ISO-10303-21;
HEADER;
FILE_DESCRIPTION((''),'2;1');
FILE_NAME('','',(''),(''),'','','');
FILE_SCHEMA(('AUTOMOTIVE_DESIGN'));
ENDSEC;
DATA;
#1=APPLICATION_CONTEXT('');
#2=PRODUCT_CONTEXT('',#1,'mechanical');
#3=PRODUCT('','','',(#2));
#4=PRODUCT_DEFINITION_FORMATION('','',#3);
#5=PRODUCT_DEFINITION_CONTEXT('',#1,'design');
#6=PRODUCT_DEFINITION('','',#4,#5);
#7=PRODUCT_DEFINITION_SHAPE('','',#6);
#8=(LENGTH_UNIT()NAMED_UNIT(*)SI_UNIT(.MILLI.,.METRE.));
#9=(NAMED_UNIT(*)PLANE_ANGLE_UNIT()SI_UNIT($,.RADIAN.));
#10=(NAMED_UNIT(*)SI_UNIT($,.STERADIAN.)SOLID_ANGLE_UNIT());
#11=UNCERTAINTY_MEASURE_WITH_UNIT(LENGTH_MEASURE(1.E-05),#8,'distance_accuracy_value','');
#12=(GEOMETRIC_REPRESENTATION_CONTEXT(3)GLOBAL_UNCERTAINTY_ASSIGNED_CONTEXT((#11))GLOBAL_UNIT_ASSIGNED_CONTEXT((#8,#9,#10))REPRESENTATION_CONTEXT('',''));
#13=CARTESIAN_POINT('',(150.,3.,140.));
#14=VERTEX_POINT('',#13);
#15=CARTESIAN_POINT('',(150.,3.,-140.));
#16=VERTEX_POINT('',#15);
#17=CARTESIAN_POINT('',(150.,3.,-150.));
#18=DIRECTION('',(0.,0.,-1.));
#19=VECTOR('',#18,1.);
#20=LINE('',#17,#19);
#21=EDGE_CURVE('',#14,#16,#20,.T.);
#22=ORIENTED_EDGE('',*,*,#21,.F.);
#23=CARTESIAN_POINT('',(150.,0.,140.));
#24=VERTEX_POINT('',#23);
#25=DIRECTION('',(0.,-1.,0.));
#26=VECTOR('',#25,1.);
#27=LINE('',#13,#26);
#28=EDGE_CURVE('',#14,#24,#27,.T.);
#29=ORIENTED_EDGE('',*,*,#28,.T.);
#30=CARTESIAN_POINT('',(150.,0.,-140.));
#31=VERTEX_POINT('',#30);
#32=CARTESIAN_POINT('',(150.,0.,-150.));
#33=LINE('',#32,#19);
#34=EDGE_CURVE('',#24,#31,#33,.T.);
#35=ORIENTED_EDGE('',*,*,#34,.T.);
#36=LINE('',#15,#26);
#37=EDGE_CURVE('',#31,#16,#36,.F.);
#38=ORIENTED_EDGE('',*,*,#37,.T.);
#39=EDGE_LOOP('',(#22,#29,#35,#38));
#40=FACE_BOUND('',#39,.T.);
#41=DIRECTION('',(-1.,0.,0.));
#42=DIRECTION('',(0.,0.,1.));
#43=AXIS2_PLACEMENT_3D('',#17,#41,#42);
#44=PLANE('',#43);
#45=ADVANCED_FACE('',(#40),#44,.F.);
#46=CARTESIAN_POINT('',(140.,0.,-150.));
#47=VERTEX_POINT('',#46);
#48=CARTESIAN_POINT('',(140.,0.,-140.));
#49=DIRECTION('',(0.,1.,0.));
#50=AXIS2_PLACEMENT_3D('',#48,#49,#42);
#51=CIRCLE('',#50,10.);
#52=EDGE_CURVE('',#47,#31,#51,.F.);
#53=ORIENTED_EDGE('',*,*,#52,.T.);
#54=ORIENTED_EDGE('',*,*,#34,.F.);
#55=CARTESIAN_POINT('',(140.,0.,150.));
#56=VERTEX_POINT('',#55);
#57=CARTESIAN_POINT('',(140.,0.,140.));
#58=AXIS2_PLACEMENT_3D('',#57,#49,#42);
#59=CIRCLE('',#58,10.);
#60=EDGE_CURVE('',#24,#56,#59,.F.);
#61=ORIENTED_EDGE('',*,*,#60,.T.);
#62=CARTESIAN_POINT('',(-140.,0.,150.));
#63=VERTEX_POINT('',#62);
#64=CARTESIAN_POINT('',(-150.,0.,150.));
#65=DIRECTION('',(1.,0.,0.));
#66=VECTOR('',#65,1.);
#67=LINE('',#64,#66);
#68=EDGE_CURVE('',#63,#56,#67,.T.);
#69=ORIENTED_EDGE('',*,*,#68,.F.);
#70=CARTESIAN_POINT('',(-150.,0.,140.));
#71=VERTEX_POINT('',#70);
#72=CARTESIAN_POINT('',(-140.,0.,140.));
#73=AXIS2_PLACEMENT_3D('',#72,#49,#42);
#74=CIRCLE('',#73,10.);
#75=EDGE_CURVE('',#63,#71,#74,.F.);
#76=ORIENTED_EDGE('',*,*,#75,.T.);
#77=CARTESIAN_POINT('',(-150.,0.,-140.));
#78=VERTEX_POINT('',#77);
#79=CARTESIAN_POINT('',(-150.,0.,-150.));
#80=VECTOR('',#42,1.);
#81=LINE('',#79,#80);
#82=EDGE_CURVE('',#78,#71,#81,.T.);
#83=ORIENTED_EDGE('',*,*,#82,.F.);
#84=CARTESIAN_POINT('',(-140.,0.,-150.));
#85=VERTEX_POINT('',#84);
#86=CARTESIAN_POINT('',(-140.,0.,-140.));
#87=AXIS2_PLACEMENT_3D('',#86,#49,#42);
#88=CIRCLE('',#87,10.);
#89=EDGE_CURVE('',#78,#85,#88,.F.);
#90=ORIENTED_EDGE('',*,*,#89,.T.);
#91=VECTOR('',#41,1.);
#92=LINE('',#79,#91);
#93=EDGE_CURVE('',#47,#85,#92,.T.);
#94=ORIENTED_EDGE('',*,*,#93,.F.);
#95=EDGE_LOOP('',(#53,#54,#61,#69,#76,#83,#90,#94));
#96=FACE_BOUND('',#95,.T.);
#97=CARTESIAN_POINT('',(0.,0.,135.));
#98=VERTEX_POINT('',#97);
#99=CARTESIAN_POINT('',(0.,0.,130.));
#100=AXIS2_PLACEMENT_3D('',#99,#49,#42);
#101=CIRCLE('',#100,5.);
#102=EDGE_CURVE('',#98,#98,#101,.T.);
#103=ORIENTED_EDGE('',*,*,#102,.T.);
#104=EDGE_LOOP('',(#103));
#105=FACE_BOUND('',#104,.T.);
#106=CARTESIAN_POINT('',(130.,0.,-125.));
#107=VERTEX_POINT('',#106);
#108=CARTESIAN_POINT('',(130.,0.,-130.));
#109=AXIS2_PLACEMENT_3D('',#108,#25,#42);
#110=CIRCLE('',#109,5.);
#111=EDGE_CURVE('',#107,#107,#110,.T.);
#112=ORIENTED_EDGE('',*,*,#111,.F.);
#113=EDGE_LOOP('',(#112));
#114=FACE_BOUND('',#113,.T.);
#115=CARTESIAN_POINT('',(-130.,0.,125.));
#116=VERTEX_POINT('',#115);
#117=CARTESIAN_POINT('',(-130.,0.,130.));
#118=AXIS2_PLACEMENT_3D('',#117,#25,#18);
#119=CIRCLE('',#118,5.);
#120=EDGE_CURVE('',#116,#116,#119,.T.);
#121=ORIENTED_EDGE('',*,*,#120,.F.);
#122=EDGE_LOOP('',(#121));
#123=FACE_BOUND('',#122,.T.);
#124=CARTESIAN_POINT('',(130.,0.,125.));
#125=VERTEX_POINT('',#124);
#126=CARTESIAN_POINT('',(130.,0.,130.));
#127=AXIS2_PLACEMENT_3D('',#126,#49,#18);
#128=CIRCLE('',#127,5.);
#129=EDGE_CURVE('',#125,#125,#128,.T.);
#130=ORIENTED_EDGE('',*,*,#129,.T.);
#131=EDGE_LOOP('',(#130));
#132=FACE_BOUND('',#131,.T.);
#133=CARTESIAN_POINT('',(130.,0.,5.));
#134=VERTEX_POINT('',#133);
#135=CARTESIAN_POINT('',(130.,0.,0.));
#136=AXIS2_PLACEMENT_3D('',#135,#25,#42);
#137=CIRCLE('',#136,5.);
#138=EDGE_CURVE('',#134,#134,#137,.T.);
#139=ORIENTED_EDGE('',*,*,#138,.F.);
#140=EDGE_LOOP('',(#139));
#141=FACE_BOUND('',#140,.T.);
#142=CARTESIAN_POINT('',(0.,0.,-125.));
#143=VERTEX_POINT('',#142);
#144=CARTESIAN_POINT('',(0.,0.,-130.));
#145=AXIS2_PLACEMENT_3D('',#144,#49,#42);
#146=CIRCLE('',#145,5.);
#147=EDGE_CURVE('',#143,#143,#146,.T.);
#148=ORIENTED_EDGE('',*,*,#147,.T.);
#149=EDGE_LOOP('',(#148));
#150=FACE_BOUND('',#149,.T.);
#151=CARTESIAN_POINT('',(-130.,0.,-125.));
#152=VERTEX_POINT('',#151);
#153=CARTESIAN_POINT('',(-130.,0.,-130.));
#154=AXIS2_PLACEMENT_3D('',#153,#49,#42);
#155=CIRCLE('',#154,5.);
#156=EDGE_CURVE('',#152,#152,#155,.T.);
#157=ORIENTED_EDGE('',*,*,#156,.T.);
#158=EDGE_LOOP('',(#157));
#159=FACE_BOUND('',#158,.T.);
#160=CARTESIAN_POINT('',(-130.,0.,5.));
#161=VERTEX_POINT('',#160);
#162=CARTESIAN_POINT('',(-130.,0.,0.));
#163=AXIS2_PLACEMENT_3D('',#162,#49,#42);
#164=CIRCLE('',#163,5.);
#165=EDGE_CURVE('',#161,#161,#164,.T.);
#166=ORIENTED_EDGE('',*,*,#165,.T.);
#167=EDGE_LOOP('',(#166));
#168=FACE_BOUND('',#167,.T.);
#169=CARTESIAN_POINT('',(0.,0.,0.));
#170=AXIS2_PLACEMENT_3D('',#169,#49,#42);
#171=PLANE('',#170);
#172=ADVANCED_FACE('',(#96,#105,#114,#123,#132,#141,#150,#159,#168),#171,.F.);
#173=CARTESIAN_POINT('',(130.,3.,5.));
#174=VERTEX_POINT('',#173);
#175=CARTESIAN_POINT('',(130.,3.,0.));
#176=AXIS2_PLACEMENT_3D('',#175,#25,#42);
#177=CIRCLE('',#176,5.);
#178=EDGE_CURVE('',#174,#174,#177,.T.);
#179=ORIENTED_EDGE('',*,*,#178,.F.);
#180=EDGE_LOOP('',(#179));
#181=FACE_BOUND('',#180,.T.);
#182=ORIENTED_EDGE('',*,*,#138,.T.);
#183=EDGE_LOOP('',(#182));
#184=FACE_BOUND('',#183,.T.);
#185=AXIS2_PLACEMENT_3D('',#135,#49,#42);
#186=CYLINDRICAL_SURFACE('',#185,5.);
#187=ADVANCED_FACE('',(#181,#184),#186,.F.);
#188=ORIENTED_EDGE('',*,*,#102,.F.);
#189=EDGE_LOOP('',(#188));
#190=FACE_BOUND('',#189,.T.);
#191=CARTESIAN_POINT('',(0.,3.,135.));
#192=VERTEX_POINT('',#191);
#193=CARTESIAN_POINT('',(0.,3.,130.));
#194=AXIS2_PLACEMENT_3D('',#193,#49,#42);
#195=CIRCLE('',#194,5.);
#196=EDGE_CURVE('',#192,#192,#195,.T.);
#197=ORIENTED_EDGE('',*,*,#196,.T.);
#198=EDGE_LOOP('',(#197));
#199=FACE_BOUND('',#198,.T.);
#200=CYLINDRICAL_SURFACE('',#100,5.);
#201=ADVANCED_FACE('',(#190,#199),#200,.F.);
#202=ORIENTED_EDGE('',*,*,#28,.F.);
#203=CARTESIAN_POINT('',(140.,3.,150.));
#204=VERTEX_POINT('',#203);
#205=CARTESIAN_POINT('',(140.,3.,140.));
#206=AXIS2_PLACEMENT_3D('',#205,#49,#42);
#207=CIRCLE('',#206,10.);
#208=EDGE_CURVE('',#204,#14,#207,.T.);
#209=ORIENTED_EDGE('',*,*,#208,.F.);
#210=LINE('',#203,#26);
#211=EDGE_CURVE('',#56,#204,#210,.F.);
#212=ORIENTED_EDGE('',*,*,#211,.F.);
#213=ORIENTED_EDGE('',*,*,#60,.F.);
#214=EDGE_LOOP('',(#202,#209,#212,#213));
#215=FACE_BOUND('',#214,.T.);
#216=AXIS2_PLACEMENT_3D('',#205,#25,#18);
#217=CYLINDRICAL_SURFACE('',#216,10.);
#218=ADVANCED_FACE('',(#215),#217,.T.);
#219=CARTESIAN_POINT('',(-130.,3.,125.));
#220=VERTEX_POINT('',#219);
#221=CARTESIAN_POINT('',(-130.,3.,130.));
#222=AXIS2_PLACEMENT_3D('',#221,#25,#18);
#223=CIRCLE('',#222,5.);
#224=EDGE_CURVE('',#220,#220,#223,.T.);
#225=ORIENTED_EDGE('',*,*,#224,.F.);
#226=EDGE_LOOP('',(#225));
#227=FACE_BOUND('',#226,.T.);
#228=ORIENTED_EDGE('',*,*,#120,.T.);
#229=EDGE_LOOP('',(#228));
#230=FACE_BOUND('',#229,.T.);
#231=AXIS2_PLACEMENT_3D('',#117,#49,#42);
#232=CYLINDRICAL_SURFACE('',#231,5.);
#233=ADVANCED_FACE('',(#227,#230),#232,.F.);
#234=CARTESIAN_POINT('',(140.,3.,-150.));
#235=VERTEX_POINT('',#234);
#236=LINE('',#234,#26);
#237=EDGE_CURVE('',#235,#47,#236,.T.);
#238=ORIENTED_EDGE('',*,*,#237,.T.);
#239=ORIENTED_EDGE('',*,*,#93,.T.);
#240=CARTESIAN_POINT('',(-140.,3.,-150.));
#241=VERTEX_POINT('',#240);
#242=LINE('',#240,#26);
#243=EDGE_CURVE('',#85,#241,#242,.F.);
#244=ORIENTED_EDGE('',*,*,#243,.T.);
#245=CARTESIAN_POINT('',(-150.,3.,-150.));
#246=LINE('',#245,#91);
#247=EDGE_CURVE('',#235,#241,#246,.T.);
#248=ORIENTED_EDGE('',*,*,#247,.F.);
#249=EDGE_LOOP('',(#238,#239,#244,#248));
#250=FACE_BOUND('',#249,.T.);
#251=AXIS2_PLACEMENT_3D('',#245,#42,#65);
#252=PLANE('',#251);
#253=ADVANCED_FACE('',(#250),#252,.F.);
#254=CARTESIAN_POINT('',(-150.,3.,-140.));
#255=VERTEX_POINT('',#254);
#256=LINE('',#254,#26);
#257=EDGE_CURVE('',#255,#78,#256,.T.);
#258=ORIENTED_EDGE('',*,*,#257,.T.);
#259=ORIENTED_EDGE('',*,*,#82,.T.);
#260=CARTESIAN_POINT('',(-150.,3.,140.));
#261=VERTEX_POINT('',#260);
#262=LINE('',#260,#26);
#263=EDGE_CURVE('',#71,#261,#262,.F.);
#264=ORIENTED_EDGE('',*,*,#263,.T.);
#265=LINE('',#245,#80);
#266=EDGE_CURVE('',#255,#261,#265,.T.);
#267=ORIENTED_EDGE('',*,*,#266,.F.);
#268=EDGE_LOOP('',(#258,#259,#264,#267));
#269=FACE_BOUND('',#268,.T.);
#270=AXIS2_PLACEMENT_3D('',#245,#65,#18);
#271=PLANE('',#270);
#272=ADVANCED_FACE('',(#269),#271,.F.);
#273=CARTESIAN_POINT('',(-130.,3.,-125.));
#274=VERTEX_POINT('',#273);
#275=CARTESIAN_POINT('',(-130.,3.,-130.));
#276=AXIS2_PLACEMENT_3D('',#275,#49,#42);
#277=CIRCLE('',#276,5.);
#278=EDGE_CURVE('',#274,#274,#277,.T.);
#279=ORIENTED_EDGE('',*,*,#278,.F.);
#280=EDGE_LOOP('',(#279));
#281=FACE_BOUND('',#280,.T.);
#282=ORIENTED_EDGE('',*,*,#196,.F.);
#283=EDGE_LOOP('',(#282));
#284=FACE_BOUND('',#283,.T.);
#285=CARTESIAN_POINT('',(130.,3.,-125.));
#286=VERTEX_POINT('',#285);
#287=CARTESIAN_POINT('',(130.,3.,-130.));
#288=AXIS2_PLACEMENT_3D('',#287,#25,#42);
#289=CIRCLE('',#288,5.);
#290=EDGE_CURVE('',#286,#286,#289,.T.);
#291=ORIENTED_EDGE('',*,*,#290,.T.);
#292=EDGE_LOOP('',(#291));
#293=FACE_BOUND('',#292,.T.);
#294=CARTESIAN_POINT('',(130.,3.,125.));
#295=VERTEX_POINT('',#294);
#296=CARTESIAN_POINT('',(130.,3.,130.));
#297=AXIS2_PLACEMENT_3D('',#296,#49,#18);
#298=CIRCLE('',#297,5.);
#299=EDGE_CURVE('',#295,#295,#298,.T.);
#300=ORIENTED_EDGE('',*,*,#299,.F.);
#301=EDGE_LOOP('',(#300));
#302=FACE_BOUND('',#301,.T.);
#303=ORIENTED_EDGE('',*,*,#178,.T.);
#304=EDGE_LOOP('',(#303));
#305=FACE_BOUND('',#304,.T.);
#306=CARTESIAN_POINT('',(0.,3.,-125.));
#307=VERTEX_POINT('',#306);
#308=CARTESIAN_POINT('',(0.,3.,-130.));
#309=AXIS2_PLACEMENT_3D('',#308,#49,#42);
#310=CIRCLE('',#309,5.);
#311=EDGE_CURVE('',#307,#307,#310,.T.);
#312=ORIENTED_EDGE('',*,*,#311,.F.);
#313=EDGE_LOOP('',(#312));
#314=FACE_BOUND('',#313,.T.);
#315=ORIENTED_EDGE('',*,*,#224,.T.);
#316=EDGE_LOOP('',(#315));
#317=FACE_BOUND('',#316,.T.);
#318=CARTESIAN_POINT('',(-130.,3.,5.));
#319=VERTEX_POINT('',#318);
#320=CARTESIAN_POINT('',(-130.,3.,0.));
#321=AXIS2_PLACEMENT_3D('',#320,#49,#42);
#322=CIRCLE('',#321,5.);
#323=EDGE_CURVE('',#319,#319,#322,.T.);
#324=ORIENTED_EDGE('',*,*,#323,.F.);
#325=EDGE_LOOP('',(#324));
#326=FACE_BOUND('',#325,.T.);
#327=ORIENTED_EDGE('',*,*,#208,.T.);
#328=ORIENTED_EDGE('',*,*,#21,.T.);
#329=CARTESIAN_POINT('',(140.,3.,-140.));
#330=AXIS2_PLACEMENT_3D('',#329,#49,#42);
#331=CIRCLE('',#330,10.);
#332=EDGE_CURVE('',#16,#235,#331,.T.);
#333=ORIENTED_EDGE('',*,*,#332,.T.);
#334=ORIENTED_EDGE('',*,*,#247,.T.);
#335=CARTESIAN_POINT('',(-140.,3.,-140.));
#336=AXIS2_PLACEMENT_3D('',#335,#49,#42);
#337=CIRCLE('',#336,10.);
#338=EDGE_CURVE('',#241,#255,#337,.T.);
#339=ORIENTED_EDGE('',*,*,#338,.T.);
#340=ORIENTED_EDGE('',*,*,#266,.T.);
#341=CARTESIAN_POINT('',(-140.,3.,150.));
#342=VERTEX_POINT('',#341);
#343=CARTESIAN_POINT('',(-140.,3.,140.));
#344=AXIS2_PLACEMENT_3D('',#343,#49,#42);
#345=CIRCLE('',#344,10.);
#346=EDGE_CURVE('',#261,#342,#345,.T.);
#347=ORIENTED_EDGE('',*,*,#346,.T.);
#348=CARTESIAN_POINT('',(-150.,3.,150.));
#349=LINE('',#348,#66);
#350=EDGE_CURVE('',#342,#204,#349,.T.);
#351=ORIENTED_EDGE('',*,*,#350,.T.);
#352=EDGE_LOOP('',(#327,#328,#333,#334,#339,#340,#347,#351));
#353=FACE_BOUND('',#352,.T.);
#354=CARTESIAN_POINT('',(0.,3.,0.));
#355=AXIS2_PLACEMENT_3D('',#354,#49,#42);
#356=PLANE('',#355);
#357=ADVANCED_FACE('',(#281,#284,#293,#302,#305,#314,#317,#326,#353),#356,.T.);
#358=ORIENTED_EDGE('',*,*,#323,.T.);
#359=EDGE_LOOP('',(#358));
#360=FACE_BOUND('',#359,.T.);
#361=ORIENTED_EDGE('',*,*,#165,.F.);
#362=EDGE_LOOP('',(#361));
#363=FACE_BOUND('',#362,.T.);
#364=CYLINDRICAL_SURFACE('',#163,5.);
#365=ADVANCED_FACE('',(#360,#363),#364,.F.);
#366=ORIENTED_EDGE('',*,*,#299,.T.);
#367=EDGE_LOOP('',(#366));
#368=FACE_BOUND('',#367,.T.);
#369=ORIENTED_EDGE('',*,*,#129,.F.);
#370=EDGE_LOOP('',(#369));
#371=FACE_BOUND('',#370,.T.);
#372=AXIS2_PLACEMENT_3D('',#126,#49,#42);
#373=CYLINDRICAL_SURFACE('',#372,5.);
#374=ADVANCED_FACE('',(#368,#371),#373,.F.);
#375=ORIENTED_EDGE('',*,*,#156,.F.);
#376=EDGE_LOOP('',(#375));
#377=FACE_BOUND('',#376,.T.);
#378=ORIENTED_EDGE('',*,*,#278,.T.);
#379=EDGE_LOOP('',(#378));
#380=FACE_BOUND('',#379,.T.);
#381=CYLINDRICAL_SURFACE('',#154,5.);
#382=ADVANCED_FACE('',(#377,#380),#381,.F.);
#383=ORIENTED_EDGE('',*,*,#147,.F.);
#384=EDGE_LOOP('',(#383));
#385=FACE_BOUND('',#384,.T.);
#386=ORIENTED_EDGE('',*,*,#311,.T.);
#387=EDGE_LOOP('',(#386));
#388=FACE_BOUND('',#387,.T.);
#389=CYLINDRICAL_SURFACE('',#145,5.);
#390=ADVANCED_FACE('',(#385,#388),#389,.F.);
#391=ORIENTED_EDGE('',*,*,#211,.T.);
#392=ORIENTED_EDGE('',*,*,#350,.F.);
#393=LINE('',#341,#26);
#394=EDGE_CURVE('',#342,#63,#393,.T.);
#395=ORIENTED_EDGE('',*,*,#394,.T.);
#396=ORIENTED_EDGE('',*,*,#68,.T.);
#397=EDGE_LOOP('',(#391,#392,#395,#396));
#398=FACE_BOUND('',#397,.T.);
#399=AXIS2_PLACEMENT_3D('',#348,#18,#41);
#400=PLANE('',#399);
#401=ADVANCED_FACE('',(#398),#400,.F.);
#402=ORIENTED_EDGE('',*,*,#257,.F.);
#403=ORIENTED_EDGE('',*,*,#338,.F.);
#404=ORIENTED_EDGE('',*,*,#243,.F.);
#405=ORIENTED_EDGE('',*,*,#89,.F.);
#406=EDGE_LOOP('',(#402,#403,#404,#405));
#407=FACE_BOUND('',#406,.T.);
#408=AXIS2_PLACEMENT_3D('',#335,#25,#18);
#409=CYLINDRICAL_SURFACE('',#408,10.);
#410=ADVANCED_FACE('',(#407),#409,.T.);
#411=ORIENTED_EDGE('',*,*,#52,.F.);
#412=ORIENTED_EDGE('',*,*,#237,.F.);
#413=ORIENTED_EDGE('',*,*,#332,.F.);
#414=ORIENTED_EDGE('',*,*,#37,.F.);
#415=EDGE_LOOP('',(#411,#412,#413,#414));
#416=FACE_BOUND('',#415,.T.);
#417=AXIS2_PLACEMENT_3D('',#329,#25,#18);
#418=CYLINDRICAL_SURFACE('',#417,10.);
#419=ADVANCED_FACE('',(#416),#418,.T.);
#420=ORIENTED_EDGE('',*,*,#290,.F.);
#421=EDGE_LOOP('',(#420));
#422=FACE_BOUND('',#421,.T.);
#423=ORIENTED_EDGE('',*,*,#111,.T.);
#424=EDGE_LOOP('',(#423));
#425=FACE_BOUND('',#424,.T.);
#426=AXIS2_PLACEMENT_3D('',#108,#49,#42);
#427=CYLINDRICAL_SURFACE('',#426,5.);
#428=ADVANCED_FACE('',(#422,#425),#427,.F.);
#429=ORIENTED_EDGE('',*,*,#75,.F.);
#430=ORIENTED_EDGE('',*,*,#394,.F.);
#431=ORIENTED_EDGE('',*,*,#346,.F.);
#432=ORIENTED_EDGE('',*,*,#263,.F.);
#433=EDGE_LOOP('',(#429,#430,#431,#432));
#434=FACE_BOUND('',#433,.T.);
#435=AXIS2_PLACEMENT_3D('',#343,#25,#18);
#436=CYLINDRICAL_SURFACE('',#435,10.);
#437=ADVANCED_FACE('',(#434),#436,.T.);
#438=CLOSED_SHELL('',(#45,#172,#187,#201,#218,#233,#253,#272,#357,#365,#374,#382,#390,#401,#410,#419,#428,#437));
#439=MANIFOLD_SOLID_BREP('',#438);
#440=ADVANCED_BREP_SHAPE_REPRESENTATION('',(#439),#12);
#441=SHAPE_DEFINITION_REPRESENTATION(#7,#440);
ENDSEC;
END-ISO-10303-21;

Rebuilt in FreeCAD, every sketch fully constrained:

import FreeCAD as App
import Part
import Sketcher
from FreeCAD import Vector


def edges_at(feature, points):
    """Names of the edges that pass closest to the given points."""
    edges = feature.Shape.Edges
    near = lambda p: min(range(len(edges)), key=lambda i: edges[i].distToShape(Part.Vertex(*p))[0])
    return sorted({f"Edge{near(p) + 1}" for p in points})

doc = App.newDocument("Part")
params = doc.addObject("Spreadsheet::Sheet", "Params")
for row, (alias, value) in enumerate([
    ("sketch1_width", "300 mm"),
    ("pad1_length", "3 mm"),
    ("fillet_radius", "10 mm"),
    ("sketch2_diameter", "10 mm"),
    ("sketch3_diameter", "10 mm"),
    ("sketch4_diameter", "10 mm"),
    ("sketch5_diameter", "10 mm"),
], start=1):
    params.set(f"A{row}", alias)
    params.set(f"B{row}", "=" + value)
    params.setAlias(f"B{row}", alias)

body = doc.addObject("PartDesign::Body", "Body")

sketch1 = doc.addObject("Sketcher::SketchObject", "Sketch")
body.addObject(sketch1)
sketch1.AttachmentSupport = (doc.XZ_Plane, [""])
sketch1.MapMode = "FlatFace"
sketch1.addGeometry([
    Part.LineSegment(Vector(-150, -150, 0), Vector(-150, 150, 0)),
    Part.LineSegment(Vector(-150, 150, 0), Vector(150, 150, 0)),
    Part.LineSegment(Vector(150, 150, 0), Vector(150, -150, 0)),
    Part.LineSegment(Vector(150, -150, 0), Vector(-150, -150, 0)),
], False)
sketch1.addConstraint([
    Sketcher.Constraint("Coincident", 0, 2, 1, 1),
    Sketcher.Constraint("Coincident", 1, 2, 2, 1),
    Sketcher.Constraint("Coincident", 2, 2, 3, 1),
    Sketcher.Constraint("Coincident", 3, 2, 0, 1),
    Sketcher.Constraint("Vertical", 0),
    Sketcher.Constraint("Horizontal", 1),
    Sketcher.Constraint("Vertical", 2),
    Sketcher.Constraint("Horizontal", 3),
    Sketcher.Constraint("Symmetric", 0, 2, 2, 2, -1, 1),
    Sketcher.Constraint("Equal", 3, 0),
    Sketcher.Constraint("DistanceX", 1, 1, 1, 2, 300.0),
])
sketch1.setExpression("Constraints[10]", "Params.sketch1_width")
pad1 = doc.addObject("PartDesign::Pad", "Pad")
body.addObject(pad1)
pad1.Profile = sketch1
pad1.setExpression("Length", "Params.pad1_length")
pad1.Reversed = True
doc.recompute()

fillet = doc.addObject("PartDesign::Fillet", "Fillet")
body.addObject(fillet)
fillet.Base = (pad1, edges_at(pad1, [
    (-150, 1.5, -150),
    (150, 1.5, -150),
    (150, 1.5, 150),
    (-150, 1.5, 150),
]))
fillet.setExpression("Radius", "Params.fillet_radius")

sketch2 = doc.addObject("Sketcher::SketchObject", "Sketch001")
body.addObject(sketch2)
sketch2.AttachmentSupport = (doc.XZ_Plane, [""])
sketch2.MapMode = "FlatFace"
sketch2.AttachmentOffset = App.Placement(Vector(0, 0, -3), App.Rotation())
sketch2.addGeometry(Part.Circle(Vector(-130, -130, 0), Vector(0, 0, 1), 5), False)
sketch2.addConstraint([
    Sketcher.Constraint("Diameter", 0, 10.0),
    Sketcher.Constraint("DistanceX", 0, 3, -1, 1, 130.0),
    Sketcher.Constraint("DistanceY", 0, 3, -1, 1, 130.0),
])
sketch2.setExpression("Constraints[0]", "Params.sketch2_diameter")
pocket1 = doc.addObject("PartDesign::Pocket", "Pocket")
body.addObject(pocket1)
pocket1.Profile = sketch2
pocket1.Type = "ThroughAll"
pocket1.Reversed = True
doc.recompute()

mirrored = doc.addObject("PartDesign::Mirrored", "Mirrored")
body.addObject(mirrored)
mirrored.Originals = [pocket1]
mirrored.MirrorPlane = (doc.XY_Plane, [""])
body.Tip = mirrored
doc.recompute()

mirrored2 = doc.addObject("PartDesign::Mirrored", "Mirrored001")
body.addObject(mirrored2)
mirrored2.Originals = [pocket1]
mirrored2.MirrorPlane = (doc.YZ_Plane, [""])
body.Tip = mirrored2

sketch3 = doc.addObject("Sketcher::SketchObject", "Sketch002")
body.addObject(sketch3)
sketch3.AttachmentSupport = (doc.XZ_Plane, [""])
sketch3.MapMode = "FlatFace"
sketch3.AttachmentOffset = App.Placement(Vector(0, 0, -3), App.Rotation())
sketch3.addGeometry(Part.Circle(Vector(130, 130, 0), Vector(0, 0, 1), 5), False)
sketch3.addConstraint([
    Sketcher.Constraint("Diameter", 0, 10.0),
    Sketcher.Constraint("DistanceX", -1, 1, 0, 3, 130.0),
    Sketcher.Constraint("DistanceY", -1, 1, 0, 3, 130.0),
])
sketch3.setExpression("Constraints[0]", "Params.sketch3_diameter")
pocket2 = doc.addObject("PartDesign::Pocket", "Pocket001")
body.addObject(pocket2)
pocket2.Profile = sketch3
pocket2.Type = "ThroughAll"
pocket2.Reversed = True

sketch4 = doc.addObject("Sketcher::SketchObject", "Sketch003")
body.addObject(sketch4)
sketch4.AttachmentSupport = (doc.XZ_Plane, [""])
sketch4.MapMode = "FlatFace"
sketch4.AttachmentOffset = App.Placement(Vector(0, 0, -3), App.Rotation())
sketch4.addGeometry(Part.Circle(Vector(-130, 0, 0), Vector(0, 0, 1), 5), False)
sketch4.addConstraint([
    Sketcher.Constraint("PointOnObject", 0, 3, -1),
    Sketcher.Constraint("Diameter", 0, 10.0),
    Sketcher.Constraint("DistanceX", 0, 3, -1, 1, 130.0),
])
sketch4.setExpression("Constraints[1]", "Params.sketch4_diameter")
pocket3 = doc.addObject("PartDesign::Pocket", "Pocket002")
body.addObject(pocket3)
pocket3.Profile = sketch4
pocket3.Type = "ThroughAll"
pocket3.Reversed = True
doc.recompute()

mirrored3 = doc.addObject("PartDesign::Mirrored", "Mirrored002")
body.addObject(mirrored3)
mirrored3.Originals = [pocket3]
mirrored3.MirrorPlane = (doc.YZ_Plane, [""])
body.Tip = mirrored3

sketch5 = doc.addObject("Sketcher::SketchObject", "Sketch004")
body.addObject(sketch5)
sketch5.AttachmentSupport = (doc.XZ_Plane, [""])
sketch5.MapMode = "FlatFace"
sketch5.AttachmentOffset = App.Placement(Vector(0, 0, -3), App.Rotation())
sketch5.addGeometry([
    Part.Circle(Vector(0, -130, 0), Vector(0, 0, 1), 5),
    Part.Circle(Vector(0, 130, 0), Vector(0, 0, 1), 5),
], False)
sketch5.addConstraint([
    Sketcher.Constraint("Equal", 0, 1),
    Sketcher.Constraint("Symmetric", 0, 3, 1, 3, -1, 1),
    Sketcher.Constraint("PointOnObject", 0, 3, -2),
    Sketcher.Constraint("Diameter", 0, 10.0),
    Sketcher.Constraint("DistanceY", 0, 3, -1, 1, 130.0),
])
sketch5.setExpression("Constraints[3]", "Params.sketch5_diameter")
pocket4 = doc.addObject("PartDesign::Pocket", "Pocket003")
body.addObject(pocket4)
pocket4.Profile = sketch5
pocket4.Type = "ThroughAll"
pocket4.Reversed = True

doc.recompute()
